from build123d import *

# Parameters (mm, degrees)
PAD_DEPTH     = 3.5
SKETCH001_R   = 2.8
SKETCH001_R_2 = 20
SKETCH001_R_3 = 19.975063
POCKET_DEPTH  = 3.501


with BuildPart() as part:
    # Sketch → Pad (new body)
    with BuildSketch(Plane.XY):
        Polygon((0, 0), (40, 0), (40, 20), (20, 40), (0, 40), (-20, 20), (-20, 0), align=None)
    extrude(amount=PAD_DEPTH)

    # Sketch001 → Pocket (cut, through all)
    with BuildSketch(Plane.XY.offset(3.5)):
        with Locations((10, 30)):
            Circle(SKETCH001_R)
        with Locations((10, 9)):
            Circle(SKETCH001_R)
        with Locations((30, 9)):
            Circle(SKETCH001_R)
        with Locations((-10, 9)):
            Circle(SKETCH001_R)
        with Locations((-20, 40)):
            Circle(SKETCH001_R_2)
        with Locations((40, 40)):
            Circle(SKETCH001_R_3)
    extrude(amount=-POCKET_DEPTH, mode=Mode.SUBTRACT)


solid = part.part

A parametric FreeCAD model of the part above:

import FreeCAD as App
import Part
import Sketcher

V = App.Vector
Q = App.Units.Quantity

doc = App.newDocument("Part")
body = doc.addObject("PartDesign::Body", "Body")

sketch1 = doc.addObject("Sketcher::SketchObject", "Sketch")
body.addObject(sketch1)
sketch1.AttachmentSupport = (doc.XY_Plane, [""])
sketch1.MapMode = "FlatFace"
sketch1.addGeometry([
    Part.LineSegment(V(40, 0, 0), V(40, 20, 0)),
    Part.LineSegment(V(40, 20, 0), V(20, 40, 0)),
    Part.LineSegment(V(20, 40, 0), V(0, 40, 0)),
    Part.LineSegment(V(0, 40, 0), V(-20, 20, 0)),
    Part.LineSegment(V(-20, 20, 0), V(-20, 0, 0)),
    Part.LineSegment(V(-20, 0, 0), V(40, 0, 0)),
], False)
sketch1.addConstraint([
    Sketcher.Constraint("Coincident", 0, 2, 1, 1),
    Sketcher.Constraint("Coincident", 1, 2, 2, 1),
    Sketcher.Constraint("Coincident", 2, 2, 3, 1),
    Sketcher.Constraint("Coincident", 3, 2, 4, 1),
    Sketcher.Constraint("Coincident", 4, 2, 5, 1),
    Sketcher.Constraint("Coincident", 5, 2, 0, 1),
    Sketcher.Constraint("Vertical", 0),
    Sketcher.Constraint("Horizontal", 2),
    Sketcher.Constraint("Vertical", 4),
    Sketcher.Constraint("Horizontal", 5),
    Sketcher.Constraint("PointOnObject", 2, 2, -2),
    Sketcher.Constraint("PointOnObject", 4, 2, -1),
    Sketcher.Constraint("Perpendicular", 1, 3),
    Sketcher.Constraint("Horizontal", 0, 2, 3, 2),
    Sketcher.Constraint("Equal", 2, 0),
    Sketcher.Constraint("Equal", 1, 3),
    Sketcher.Constraint("DistanceX", 2, 2, 2, 1, Q("20 mm")),
    Sketcher.Constraint("DistanceX", 5, 1, 5, 2, Q("60 mm")),
])
pad1 = doc.addObject("PartDesign::Pad", "Pad")
body.addObject(pad1)
pad1.Profile = sketch1
pad1.Length = 3.5

sketch2 = doc.addObject("Sketcher::SketchObject", "Sketch001")
body.addObject(sketch2)
sketch2.AttachmentSupport = (doc.XY_Plane, [""])
sketch2.MapMode = "FlatFace"
sketch2.AttachmentOffset = App.Placement(V(0, 0, 3.5), App.Rotation())
sketch2.addGeometry([
    Part.Circle(V(10, 30, 0), V(0, 0, 1), 2.8),
    Part.Circle(V(10, 9, 0), V(0, 0, 1), 2.8),
    Part.Circle(V(30, 9, 0), V(0, 0, 1), 2.8),
    Part.Circle(V(-10, 9, 0), V(0, 0, 1), 2.8),
    Part.Circle(V(-20, 40, 0), V(0, 0, 1), 20),
    Part.Circle(V(40, 40, 0), V(0, 0, 1), 20),
], False)
sketch2.addConstraint([
    Sketcher.Constraint("Equal", 0, 1),
    Sketcher.Constraint("Equal", 1, 2),
    Sketcher.Constraint("Equal", 2, 3),
    Sketcher.Constraint("Symmetric", 1, 3, 3, 3, -2),
    Sketcher.Constraint("Horizontal", 1, 3, 2, 3),
    Sketcher.Constraint("Horizontal", 4, 3, 5, 3),
    Sketcher.Constraint("Vertical", 0, 3, 1, 3),
    Sketcher.Constraint("Diameter", 4, Q("40 mm")),
    Sketcher.Constraint("Diameter", 0, Q("5.6 mm")),
    Sketcher.Constraint("DistanceX", -1, 1, 0, 3, Q("10 mm")),
    Sketcher.Constraint("DistanceY", -1, 1, 0, 3, Q("30 mm")),
    Sketcher.Constraint("DistanceY", -1, 1, 1, 3, Q("9 mm")),
    Sketcher.Constraint("DistanceX", -1, 1, 2, 3, Q("30 mm")),
    Sketcher.Constraint("DistanceX", 4, 3, -1, 1, Q("20 mm")),
    Sketcher.Constraint("DistanceY", -1, 1, 4, 3, Q("40 mm")),
    Sketcher.Constraint("DistanceX", -1, 1, 5, 3, Q("40 mm")),
    Sketcher.Constraint("Diameter", 5, Q("39.950126 mm")),
])
pocket1 = doc.addObject("PartDesign::Pocket", "Pocket")
body.addObject(pocket1)
pocket1.Profile = sketch2
pocket1.Type = "ThroughAll"

doc.recompute()
